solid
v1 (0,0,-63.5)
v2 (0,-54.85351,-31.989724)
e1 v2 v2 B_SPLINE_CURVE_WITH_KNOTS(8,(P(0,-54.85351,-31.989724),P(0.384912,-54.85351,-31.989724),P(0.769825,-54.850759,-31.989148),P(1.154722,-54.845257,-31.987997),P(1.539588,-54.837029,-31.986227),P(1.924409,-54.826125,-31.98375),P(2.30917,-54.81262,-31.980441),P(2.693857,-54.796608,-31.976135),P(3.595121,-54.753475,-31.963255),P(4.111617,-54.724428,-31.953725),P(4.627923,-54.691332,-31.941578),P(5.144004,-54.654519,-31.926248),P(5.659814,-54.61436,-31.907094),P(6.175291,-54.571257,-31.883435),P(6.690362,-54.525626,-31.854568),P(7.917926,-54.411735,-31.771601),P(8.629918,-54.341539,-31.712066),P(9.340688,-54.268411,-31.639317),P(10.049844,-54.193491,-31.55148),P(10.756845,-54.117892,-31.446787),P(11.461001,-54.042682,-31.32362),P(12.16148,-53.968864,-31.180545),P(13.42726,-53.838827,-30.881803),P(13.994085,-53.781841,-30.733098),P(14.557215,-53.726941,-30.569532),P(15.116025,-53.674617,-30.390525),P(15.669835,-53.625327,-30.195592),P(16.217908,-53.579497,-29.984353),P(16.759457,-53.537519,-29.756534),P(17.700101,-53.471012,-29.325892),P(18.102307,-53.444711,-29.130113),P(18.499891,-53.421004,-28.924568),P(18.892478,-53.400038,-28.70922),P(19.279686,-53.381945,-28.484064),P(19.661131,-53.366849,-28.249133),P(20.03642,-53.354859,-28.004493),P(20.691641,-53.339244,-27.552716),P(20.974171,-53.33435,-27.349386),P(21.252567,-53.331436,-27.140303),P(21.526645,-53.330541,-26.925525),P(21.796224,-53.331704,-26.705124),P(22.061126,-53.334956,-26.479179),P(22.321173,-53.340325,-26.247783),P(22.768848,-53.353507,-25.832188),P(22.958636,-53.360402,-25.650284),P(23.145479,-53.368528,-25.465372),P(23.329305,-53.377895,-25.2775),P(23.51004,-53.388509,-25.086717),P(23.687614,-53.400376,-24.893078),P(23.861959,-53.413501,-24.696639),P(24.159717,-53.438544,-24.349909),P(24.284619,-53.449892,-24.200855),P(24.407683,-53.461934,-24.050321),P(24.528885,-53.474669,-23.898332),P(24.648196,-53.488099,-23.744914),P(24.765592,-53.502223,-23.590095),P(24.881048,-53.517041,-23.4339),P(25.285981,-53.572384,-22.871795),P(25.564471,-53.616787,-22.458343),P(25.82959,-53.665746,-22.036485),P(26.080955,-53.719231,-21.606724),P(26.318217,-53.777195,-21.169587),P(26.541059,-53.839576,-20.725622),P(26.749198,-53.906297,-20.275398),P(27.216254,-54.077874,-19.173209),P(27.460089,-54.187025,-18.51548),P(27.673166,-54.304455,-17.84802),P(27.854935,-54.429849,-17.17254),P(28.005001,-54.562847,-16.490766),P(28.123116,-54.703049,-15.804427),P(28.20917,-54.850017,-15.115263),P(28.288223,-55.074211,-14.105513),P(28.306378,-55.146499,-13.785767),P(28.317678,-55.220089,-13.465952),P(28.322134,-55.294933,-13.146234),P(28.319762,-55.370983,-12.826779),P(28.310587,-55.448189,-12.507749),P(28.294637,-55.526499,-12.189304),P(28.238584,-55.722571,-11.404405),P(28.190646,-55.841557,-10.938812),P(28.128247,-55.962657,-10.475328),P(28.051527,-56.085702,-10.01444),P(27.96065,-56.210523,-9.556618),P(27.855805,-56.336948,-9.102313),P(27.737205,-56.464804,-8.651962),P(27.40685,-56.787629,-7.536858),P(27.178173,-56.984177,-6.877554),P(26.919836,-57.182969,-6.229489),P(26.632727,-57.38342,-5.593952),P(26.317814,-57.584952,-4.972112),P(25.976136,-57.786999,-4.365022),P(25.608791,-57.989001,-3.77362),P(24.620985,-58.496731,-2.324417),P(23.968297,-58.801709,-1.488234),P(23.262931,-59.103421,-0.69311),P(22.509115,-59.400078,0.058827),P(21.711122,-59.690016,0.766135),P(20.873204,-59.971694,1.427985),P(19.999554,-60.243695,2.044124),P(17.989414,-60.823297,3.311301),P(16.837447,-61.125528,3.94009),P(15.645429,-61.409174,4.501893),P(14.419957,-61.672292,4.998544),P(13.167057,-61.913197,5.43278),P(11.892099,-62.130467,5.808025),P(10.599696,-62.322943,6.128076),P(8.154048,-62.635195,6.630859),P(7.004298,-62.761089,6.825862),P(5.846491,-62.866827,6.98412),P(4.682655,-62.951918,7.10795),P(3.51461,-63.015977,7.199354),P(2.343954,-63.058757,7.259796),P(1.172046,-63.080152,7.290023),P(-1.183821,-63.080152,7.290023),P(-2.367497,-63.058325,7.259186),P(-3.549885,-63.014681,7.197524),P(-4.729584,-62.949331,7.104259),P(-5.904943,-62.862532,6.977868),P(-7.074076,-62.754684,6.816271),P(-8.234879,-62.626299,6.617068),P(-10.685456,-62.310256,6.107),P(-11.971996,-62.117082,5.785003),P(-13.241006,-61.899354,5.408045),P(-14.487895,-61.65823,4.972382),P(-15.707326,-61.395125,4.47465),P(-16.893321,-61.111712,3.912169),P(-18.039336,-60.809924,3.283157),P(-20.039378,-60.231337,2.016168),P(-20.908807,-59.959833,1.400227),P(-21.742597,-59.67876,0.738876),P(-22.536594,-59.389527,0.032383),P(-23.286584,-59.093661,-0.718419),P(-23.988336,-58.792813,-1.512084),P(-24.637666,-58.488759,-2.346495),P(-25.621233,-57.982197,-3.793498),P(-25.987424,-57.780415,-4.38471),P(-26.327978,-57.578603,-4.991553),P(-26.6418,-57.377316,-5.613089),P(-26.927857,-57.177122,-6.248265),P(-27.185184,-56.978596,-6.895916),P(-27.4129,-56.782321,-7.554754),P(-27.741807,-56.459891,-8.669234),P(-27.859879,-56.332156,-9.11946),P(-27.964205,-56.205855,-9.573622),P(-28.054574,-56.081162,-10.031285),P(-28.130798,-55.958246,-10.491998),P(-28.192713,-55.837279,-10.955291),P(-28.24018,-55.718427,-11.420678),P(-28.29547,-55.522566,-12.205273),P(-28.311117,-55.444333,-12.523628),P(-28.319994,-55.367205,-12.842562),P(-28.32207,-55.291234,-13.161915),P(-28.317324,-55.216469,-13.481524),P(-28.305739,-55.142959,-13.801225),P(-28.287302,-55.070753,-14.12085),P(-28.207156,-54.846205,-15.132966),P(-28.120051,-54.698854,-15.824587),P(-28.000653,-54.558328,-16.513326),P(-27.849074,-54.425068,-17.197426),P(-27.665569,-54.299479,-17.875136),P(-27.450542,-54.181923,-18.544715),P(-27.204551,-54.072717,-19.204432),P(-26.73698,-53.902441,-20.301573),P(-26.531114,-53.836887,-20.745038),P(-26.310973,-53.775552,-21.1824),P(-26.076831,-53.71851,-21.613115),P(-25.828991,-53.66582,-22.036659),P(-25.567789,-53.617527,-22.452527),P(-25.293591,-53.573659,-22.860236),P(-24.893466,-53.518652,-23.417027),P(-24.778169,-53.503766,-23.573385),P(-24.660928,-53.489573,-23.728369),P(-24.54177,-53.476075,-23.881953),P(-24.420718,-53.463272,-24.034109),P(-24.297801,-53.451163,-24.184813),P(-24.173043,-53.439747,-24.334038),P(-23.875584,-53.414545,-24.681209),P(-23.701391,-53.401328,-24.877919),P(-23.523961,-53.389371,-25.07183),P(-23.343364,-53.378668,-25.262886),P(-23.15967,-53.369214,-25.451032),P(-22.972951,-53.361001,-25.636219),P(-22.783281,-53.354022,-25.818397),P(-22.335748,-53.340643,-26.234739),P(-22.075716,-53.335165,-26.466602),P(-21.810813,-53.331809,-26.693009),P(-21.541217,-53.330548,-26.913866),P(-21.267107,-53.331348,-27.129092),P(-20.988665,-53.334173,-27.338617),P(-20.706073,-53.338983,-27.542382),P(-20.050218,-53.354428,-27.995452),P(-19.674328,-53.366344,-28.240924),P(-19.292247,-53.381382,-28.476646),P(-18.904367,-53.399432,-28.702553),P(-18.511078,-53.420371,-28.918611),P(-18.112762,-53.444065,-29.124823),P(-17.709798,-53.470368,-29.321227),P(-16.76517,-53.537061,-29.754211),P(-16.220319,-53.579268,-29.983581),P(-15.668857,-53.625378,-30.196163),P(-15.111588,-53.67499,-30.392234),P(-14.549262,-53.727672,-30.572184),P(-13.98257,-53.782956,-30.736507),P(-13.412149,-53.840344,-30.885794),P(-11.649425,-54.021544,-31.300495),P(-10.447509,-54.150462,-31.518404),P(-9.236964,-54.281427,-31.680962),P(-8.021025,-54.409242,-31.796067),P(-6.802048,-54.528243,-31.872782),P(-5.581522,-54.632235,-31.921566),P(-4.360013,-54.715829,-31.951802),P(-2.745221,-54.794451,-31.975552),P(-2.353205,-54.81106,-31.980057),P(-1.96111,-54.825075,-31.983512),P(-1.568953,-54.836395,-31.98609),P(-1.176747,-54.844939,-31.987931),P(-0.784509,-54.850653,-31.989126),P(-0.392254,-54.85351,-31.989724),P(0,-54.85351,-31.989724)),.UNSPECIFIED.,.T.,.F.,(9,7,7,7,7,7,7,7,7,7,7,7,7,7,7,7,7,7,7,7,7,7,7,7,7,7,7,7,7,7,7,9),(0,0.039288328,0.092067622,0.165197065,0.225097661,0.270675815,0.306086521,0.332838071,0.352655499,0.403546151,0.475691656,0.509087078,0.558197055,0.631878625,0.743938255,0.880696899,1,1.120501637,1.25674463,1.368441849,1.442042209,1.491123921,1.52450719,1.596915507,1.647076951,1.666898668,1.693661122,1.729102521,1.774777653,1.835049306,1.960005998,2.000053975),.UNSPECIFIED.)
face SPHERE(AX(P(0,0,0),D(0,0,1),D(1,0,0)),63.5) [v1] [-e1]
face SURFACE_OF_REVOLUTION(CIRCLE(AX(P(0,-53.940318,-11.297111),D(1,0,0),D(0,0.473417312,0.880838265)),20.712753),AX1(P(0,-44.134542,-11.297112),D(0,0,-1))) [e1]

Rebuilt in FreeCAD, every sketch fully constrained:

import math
import FreeCAD as App
import Part
import Sketcher
from FreeCAD import Vector
Q = App.Units.Quantity

doc = App.newDocument("Part")
body = doc.addObject("PartDesign::Body", "Body")

sketch1 = doc.addObject("Sketcher::SketchObject", "Sketch")
body.addObject(sketch1)
sketch1.AttachmentSupport = (doc.XZ_Plane, [""])
sketch1.MapMode = "FlatFace"
sketch1.addGeometry(Part.LineSegment(Vector(0, 63.5, 0), Vector(0, -63.5, 0)), False)
sketch1.addGeometry(Part.ArcOfCircle(Part.Circle(Vector(0, 0, 0), Vector(0, 0, 1), 63.5), math.radians(-90), math.radians(90)), False)
sketch1.addConstraint(Sketcher.Constraint("Coincident", 0, 1, 1, 2))
sketch1.addConstraint(Sketcher.Constraint("Coincident", 1, 1, 0, 2))
sketch1.addConstraint(Sketcher.Constraint("Vertical", 0))
sketch1.addConstraint(Sketcher.Constraint("Coincident", 1, 3, -1, 1))
sketch1.addConstraint(Sketcher.Constraint("PointOnObject", 0, 1, -2))
sketch1.addConstraint(Sketcher.Constraint("Radius", 1, Q("2.5 in")))
revolution = doc.addObject("PartDesign::Revolution", "Revolution")
body.addObject(revolution)
revolution.Profile = sketch1
revolution.ReferenceAxis = (sketch1, ["V_Axis"])
revolution.Angle = 360

sketch2 = doc.addObject("Sketcher::SketchObject", "Sketch001")
body.addObject(sketch2)
sketch2.AttachmentSupport = (doc.YZ_Plane, [""])
sketch2.MapMode = "FlatFace"
sketch2.addGeometry(Part.LineSegment(Vector(-44.134542, -29.541697, 0), Vector(-44.134542, 6.947474, 0)), False)
sketch2.addGeometry(Part.ArcOfCircle(Part.Circle(Vector(-53.940318, -11.297111, 0), Vector(0, 0, 1), 20.712753), math.radians(61.743649), math.radians(298.256351)), False)
sketch2.addGeometry(Part.LineSegment(Vector(-44.134542, 6.947474, 0), Vector(-44.134542, -29.541697, 0)), True)
sketch2.addConstraint(Sketcher.Constraint("Coincident", 0, 1, 1, 2))
sketch2.addConstraint(Sketcher.Constraint("Coincident", 1, 1, 0, 2))
sketch2.addConstraint(Sketcher.Constraint("Vertical", 0))
sketch2.addConstraint(Sketcher.Constraint("Vertical", 2))
sketch2.addConstraint(Sketcher.Constraint("Coincident", 2, 1, 1, 1))
sketch2.addConstraint(Sketcher.Constraint("Equal", 0, 2))
sketch2.addConstraint(Sketcher.Constraint("Radius", 1, Q("20.712753 mm")))
sketch2.addConstraint(Sketcher.Constraint("DistanceY", 0, 1, 0, 2, Q("36.489171 mm")))
sketch2.addConstraint(Sketcher.Constraint("DistanceY", 1, 3, -1, 1, Q("11.297111 mm")))
sketch2.addConstraint(Sketcher.Constraint("DistanceX", 1, 3, -1, 1, Q("53.940318 mm")))
revolution2 = doc.addObject("PartDesign::Revolution", "Revolution001")
body.addObject(revolution2)
revolution2.Profile = sketch2
revolution2.ReferenceAxis = (sketch2, ["Axis0"])
revolution2.Angle = 360

doc.recompute()
